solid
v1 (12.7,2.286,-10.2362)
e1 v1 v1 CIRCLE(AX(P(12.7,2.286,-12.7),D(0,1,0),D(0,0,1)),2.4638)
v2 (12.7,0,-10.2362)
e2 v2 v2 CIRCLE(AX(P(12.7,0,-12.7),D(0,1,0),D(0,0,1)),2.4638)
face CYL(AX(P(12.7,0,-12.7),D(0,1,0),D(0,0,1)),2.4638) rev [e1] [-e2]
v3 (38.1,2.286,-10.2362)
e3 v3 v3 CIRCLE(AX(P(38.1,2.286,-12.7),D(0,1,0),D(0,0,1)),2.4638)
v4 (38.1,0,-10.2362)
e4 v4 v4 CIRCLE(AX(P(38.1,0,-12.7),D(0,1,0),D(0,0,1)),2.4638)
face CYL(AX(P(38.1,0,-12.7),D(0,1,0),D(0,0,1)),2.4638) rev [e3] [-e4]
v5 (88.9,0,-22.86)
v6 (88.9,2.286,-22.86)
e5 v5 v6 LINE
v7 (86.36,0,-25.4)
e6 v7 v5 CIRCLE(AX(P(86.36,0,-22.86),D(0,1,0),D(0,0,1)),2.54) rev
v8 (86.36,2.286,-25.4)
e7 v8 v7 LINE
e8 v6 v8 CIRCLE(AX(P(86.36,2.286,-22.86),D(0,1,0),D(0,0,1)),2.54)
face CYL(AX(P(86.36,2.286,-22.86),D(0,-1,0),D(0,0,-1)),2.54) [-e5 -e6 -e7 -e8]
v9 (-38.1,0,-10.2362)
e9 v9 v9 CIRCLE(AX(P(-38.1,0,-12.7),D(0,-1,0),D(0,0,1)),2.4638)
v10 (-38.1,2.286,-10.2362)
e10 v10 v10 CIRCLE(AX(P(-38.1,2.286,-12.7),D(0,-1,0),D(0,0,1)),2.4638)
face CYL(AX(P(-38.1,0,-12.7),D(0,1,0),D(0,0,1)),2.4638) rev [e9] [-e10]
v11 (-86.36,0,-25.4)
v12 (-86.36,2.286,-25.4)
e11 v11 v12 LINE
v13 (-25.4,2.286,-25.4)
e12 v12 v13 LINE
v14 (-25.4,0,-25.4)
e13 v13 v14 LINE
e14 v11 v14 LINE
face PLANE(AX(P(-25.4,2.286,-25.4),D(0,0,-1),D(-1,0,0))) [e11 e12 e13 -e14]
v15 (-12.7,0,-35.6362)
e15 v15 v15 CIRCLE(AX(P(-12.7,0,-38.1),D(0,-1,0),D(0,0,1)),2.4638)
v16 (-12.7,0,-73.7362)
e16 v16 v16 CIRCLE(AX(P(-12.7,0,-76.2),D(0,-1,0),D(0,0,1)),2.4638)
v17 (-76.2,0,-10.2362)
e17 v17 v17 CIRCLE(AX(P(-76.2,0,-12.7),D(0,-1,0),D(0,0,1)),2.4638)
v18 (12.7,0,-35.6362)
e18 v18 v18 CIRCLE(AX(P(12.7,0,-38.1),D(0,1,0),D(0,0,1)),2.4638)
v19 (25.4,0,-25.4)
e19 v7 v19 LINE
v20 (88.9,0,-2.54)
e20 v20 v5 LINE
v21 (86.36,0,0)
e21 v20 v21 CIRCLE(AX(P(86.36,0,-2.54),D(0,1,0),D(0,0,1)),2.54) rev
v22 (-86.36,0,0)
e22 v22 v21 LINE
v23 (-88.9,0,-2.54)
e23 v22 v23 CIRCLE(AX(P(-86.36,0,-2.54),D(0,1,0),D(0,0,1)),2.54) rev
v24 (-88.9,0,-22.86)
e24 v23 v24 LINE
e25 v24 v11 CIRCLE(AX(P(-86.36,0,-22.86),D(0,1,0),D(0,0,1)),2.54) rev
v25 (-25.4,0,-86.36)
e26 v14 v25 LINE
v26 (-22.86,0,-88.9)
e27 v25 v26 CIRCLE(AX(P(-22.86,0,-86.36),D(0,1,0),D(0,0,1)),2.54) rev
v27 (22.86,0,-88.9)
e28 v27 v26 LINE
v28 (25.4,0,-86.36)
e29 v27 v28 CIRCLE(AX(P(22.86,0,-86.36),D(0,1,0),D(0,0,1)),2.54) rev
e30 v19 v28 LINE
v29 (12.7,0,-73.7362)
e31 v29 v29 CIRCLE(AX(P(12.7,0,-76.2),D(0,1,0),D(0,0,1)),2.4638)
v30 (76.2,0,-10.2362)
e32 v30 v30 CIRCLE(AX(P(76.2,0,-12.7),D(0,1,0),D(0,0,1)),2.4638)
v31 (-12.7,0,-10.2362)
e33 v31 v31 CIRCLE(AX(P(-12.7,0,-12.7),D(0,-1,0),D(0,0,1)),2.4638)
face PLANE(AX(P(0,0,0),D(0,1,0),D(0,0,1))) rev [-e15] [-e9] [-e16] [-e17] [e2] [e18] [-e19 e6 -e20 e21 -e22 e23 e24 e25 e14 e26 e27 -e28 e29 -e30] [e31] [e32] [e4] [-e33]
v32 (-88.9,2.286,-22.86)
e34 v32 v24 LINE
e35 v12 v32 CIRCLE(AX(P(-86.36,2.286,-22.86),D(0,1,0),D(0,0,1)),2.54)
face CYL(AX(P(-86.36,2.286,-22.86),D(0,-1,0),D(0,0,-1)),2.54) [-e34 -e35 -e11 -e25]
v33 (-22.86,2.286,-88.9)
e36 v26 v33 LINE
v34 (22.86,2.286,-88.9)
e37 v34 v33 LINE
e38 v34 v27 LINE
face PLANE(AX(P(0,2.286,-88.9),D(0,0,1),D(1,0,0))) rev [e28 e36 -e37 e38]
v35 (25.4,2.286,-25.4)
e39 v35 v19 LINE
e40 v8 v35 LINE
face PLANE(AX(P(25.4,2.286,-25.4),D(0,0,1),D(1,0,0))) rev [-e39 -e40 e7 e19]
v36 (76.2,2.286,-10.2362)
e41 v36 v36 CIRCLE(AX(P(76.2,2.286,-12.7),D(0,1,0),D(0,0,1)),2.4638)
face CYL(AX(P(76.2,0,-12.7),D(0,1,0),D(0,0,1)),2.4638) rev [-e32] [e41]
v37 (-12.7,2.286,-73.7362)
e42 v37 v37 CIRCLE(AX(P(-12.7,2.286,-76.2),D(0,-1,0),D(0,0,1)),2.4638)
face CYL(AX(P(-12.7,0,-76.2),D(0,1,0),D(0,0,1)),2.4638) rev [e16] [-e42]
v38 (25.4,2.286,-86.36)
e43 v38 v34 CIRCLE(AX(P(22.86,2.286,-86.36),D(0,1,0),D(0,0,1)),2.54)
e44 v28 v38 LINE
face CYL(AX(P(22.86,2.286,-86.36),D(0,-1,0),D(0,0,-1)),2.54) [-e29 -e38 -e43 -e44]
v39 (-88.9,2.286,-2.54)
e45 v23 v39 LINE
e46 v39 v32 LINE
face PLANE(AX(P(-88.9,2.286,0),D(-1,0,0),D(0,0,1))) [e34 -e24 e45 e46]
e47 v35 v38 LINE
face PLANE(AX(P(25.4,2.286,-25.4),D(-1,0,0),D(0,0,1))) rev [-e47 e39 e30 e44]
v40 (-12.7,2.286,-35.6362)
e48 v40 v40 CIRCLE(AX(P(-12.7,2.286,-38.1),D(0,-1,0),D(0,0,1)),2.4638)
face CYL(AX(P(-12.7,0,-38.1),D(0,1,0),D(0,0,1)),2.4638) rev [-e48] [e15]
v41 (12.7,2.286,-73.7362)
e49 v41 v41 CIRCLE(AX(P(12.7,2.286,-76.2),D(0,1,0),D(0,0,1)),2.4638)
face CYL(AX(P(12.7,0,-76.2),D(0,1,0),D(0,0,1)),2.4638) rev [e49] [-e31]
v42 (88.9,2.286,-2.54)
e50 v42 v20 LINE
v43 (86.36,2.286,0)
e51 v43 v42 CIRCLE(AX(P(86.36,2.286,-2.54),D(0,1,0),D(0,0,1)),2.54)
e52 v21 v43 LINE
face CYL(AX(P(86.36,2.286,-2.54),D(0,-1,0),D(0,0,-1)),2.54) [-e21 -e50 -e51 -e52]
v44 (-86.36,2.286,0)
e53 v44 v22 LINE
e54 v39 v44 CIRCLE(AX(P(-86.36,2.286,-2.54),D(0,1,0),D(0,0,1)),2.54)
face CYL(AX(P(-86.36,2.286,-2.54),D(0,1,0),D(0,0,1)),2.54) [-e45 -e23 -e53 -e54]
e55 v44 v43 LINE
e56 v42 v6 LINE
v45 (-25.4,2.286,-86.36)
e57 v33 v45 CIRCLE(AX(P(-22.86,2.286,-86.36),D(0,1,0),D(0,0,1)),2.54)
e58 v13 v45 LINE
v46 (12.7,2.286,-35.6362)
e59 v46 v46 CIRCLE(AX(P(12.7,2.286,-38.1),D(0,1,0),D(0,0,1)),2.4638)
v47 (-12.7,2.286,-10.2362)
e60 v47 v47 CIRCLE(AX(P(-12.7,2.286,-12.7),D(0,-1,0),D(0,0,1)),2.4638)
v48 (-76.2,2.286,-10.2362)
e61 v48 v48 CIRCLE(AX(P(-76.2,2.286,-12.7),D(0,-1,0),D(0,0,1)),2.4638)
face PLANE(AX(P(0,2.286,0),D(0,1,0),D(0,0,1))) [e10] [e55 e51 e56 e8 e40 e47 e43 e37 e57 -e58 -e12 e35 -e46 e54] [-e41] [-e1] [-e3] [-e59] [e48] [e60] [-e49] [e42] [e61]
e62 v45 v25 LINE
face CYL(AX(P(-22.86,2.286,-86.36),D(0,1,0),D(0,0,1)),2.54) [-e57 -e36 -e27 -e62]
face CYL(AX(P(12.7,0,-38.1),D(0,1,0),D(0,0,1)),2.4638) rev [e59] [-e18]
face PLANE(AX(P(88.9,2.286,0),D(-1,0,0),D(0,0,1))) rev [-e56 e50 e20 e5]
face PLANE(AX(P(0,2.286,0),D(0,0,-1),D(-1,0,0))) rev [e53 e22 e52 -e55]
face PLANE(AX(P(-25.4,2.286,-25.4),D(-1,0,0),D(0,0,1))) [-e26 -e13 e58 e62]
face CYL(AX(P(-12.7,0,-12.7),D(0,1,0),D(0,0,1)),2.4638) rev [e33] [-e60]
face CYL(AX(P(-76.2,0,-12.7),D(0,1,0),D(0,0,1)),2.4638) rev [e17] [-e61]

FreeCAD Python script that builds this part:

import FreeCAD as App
import Part
import Sketcher
Q = App.Units.Quantity


def edges_at(feature, points):
    """Names of the edges that pass closest to the given points."""
    edges = feature.Shape.Edges
    near = lambda p: min(range(len(edges)), key=lambda i: edges[i].distToShape(Part.Vertex(*p))[0])
    return sorted({f"Edge{near(p) + 1}" for p in points})


def add_polygon(sketch, points):
    """Adds a closed chain of lines whose ends are joined by coincident constraints."""
    first, n = sketch.GeometryCount, len(points)
    for a, b in zip(points, points[1:] + points[:1]):
        sketch.addGeometry(Part.LineSegment(App.Vector(*a, 0), App.Vector(*b, 0)), False)
    for i in range(n):
        sketch.addConstraint(Sketcher.Constraint("Coincident", first + i, 2, first + (i + 1) % n, 1))

doc = App.newDocument("Part")
body = doc.addObject("PartDesign::Body", "Body")

sketch1 = body.newObject("Sketcher::SketchObject", "Sketch")
sketch1.AttachmentSupport = (doc.getObject("XZ_Plane"), [""])
sketch1.MapMode = "FlatFace"
add_polygon(sketch1, [(0, 0), (88.9, 0), (88.9, -25.4), (25.4, -25.4), (25.4, -88.9), (0, -88.9)])
sketch1.addConstraint([
    Sketcher.Constraint("Horizontal", 0),
    Sketcher.Constraint("Vertical", 1),
    Sketcher.Constraint("Horizontal", 2),
    Sketcher.Constraint("Vertical", 3),
    Sketcher.Constraint("Horizontal", 4),
    Sketcher.Constraint("Vertical", 5),
    Sketcher.Constraint("Coincident", 5, 2, -1, 1),
    Sketcher.Constraint("Equal", 4, 1),
    Sketcher.Constraint("Equal", 2, 3),
    Sketcher.Constraint("DistanceX", 4, 2, 4, 1, Q("1 in")),
    Sketcher.Constraint("DistanceX", 0, 1, 0, 2, Q("3.5 in")),
])
pad1 = body.newObject("PartDesign::Pad", "Pad")
pad1.Profile = sketch1
pad1.Length = Q("0.09 in")
pad1.Reversed = True

sketch2 = body.newObject("Sketcher::SketchObject", "Sketch001")
sketch2.AttachmentSupport = (doc.getObject("XZ_Plane"), [""])
sketch2.MapMode = "FlatFace"
sketch2.AttachmentOffset = App.Placement(App.Vector(0, 0, -0.09 * 25.4), App.Rotation())
sketch2.addGeometry([
    Part.Circle(App.Vector(76.2, -12.7, 0), App.Vector(0, 0, 1), 2.4638),
    Part.Circle(App.Vector(12.7, -12.7, 0), App.Vector(0, 0, 1), 2.4638),
    Part.Circle(App.Vector(12.7, -76.2, 0), App.Vector(0, 0, 1), 2.4638),
    Part.Circle(App.Vector(12.7, -38.1, 0), App.Vector(0, 0, 1), 2.4638),
    Part.Circle(App.Vector(38.1, -12.7, 0), App.Vector(0, 0, 1), 2.4638),
], False)
sketch2.addConstraint([
    Sketcher.Constraint("Equal", 0, 1),
    Sketcher.Constraint("Equal", 1, 2),
    Sketcher.Constraint("Equal", 2, 3),
    Sketcher.Constraint("Equal", 3, 4),
    Sketcher.Constraint("Horizontal", 0, 3, 1, 3),
    Sketcher.Constraint("Horizontal", 1, 3, 4, 3),
    Sketcher.Constraint("Vertical", 1, 3, 2, 3),
    Sketcher.Constraint("Vertical", 2, 3, 3, 3),
    Sketcher.Constraint("Diameter", 0, Q("0.194 in")),
    Sketcher.Constraint("DistanceX", -1, 1, 0, 3, Q("3 in")),
    Sketcher.Constraint("DistanceY", 2, 3, -1, 1, Q("3 in")),
    Sketcher.Constraint("DistanceY", 3, 3, 1, 3, Q("1 in")),
    Sketcher.Constraint("DistanceX", 1, 3, 4, 3, Q("1 in")),
    Sketcher.Constraint("DistanceY", 0, 3, -1, 1, Q("0.5 in")),
    Sketcher.Constraint("DistanceX", -1, 1, 1, 3, Q("0.5 in")),
])
pocket1 = body.newObject("PartDesign::Pocket", "Pocket")
pocket1.Profile = sketch2
pocket1.Type = "ThroughAll"
pocket1.Reversed = True
doc.recompute()

mirrored = body.newObject("PartDesign::Mirrored", "Mirrored")
mirrored.Originals = [pad1, pocket1]
mirrored.MirrorPlane = (doc.getObject("YZ_Plane"), [""])
body.Tip = mirrored
doc.recompute()

fillet = body.newObject("PartDesign::Fillet", "Fillet")
fillet.Base = (mirrored, edges_at(mirrored, [
    (25.4, 1.143, -88.9),
    (88.9, 1.143, -25.4),
    (88.9, 1.143, 0),
    (-25.4, 1.143, -88.9),
    (-88.9, 1.143, -25.4),
    (-88.9, 1.143, 0),
]))
fillet.Radius = Q("0.1 in")

doc.recompute()
